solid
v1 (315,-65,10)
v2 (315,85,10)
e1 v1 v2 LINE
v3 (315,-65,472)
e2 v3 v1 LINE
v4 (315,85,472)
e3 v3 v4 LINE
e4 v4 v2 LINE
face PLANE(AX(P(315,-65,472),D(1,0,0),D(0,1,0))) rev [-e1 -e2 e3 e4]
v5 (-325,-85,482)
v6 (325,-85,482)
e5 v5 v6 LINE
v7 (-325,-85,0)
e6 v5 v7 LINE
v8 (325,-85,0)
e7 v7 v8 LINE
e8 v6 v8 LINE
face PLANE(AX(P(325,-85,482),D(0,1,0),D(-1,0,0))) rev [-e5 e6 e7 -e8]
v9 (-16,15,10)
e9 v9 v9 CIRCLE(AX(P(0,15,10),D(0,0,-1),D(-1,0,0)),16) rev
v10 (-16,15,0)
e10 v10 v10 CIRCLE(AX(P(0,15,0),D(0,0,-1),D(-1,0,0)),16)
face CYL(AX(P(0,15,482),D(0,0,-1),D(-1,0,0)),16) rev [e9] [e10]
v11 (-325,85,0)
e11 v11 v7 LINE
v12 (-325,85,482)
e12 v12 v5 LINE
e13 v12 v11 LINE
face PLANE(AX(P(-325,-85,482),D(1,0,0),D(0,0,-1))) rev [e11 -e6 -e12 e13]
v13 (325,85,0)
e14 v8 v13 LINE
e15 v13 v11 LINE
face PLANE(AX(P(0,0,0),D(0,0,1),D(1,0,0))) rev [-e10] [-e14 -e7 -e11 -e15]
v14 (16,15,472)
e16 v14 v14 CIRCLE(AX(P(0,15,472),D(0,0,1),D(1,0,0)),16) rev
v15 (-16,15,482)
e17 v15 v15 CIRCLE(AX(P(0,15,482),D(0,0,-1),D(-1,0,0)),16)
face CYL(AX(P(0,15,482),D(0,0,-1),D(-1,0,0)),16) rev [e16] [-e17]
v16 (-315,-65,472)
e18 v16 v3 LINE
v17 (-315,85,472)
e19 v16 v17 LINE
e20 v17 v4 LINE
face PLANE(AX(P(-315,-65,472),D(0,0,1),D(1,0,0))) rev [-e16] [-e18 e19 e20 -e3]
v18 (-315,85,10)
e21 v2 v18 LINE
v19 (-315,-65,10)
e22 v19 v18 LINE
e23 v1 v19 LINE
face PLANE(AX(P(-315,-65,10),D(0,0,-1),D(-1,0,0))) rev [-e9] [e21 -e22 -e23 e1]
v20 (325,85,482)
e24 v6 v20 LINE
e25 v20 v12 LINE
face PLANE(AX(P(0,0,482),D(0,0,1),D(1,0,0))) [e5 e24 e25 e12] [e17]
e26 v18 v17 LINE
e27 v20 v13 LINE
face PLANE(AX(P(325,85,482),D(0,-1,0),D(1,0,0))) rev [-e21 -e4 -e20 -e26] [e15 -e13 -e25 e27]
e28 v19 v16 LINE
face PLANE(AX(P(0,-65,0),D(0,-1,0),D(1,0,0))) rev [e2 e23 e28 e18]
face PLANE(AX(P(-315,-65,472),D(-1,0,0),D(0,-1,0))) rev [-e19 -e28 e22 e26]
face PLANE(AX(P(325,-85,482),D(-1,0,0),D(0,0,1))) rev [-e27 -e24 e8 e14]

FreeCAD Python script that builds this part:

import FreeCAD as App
import Part
import Sketcher
from FreeCAD import Vector

doc = App.newDocument("Part")
body = doc.addObject("PartDesign::Body", "Body")

sketch1 = doc.addObject("Sketcher::SketchObject", "Sketch")
body.addObject(sketch1)
sketch1.AttachmentSupport = (doc.XY_Plane, [""])
sketch1.MapMode = "FlatFace"
sketch1.addGeometry([
    Part.LineSegment(Vector(-325, 85, 0), Vector(-325, -85, 0)),
    Part.LineSegment(Vector(-325, -85, 0), Vector(325, -85, 0)),
    Part.LineSegment(Vector(325, -85, 0), Vector(325, 85, 0)),
    Part.LineSegment(Vector(325, 85, 0), Vector(-325, 85, 0)),
], False)
sketch1.addConstraint([
    Sketcher.Constraint("Coincident", 0, 2, 1, 1),
    Sketcher.Constraint("Coincident", 1, 2, 2, 1),
    Sketcher.Constraint("Coincident", 2, 2, 3, 1),
    Sketcher.Constraint("Coincident", 3, 2, 0, 1),
    Sketcher.Constraint("Vertical", 0),
    Sketcher.Constraint("Horizontal", 1),
    Sketcher.Constraint("Vertical", 2),
    Sketcher.Constraint("Horizontal", 3),
    Sketcher.Constraint("Symmetric", 0, 2, 2, 2, -1, 1),
    Sketcher.Constraint("DistanceX", 1, 1, 1, 2, 650.0),
    Sketcher.Constraint("DistanceY", 0, 2, 0, 1, 170.0),
])
pad1 = doc.addObject("PartDesign::Pad", "Pad")
body.addObject(pad1)
pad1.Profile = sketch1
pad1.Length = 482

sketch2 = doc.addObject("Sketcher::SketchObject", "Sketch001")
body.addObject(sketch2)
sketch2.AttachmentSupport = (doc.XY_Plane, [""])
sketch2.MapMode = "FlatFace"
sketch2.addGeometry(Part.Circle(Vector(0, 15, 0), Vector(0, 0, 1), 16), False)
sketch2.addConstraint([
    Sketcher.Constraint("PointOnObject", 0, 3, -2),
    Sketcher.Constraint("Diameter", 0, 32.0),
    Sketcher.Constraint("DistanceY", -1, 1, 0, 3, 15.0),
])
pocket1 = doc.addObject("PartDesign::Pocket", "Pocket")
body.addObject(pocket1)
pocket1.Profile = sketch2
pocket1.Type = "ThroughAll"
pocket1.Reversed = True

sketch3 = doc.addObject("Sketcher::SketchObject", "Sketch002")
body.addObject(sketch3)
sketch3.AttachmentSupport = (doc.XZ_Plane, [""])
sketch3.MapMode = "FlatFace"
sketch3.AttachmentOffset = App.Placement(Vector(0, 0, -85), App.Rotation())
sketch3.addGeometry([
    Part.LineSegment(Vector(-315, 10, 0), Vector(-315, 472, 0)),
    Part.LineSegment(Vector(-315, 472, 0), Vector(315, 472, 0)),
    Part.LineSegment(Vector(315, 472, 0), Vector(315, 10, 0)),
    Part.LineSegment(Vector(315, 10, 0), Vector(-315, 10, 0)),
], False)
sketch3.addConstraint([
    Sketcher.Constraint("Coincident", 0, 2, 1, 1),
    Sketcher.Constraint("Coincident", 1, 2, 2, 1),
    Sketcher.Constraint("Coincident", 2, 2, 3, 1),
    Sketcher.Constraint("Coincident", 3, 2, 0, 1),
    Sketcher.Constraint("Vertical", 0),
    Sketcher.Constraint("Horizontal", 1),
    Sketcher.Constraint("Vertical", 2),
    Sketcher.Constraint("Horizontal", 3),
    Sketcher.Constraint("DistanceX", 1, 1, 1, 2, 630.0),
    Sketcher.Constraint("DistanceY", 0, 1, 0, 2, 462.0),
    Sketcher.Constraint("DistanceX", 0, 2, -1, 1, 315.0),
    Sketcher.Constraint("DistanceY", -1, 1, 0, 2, 472.0),
])
pocket2 = doc.addObject("PartDesign::Pocket", "Pocket001")
body.addObject(pocket2)
pocket2.Profile = sketch3
pocket2.Length = 150
pocket2.Reversed = True

doc.recompute()
